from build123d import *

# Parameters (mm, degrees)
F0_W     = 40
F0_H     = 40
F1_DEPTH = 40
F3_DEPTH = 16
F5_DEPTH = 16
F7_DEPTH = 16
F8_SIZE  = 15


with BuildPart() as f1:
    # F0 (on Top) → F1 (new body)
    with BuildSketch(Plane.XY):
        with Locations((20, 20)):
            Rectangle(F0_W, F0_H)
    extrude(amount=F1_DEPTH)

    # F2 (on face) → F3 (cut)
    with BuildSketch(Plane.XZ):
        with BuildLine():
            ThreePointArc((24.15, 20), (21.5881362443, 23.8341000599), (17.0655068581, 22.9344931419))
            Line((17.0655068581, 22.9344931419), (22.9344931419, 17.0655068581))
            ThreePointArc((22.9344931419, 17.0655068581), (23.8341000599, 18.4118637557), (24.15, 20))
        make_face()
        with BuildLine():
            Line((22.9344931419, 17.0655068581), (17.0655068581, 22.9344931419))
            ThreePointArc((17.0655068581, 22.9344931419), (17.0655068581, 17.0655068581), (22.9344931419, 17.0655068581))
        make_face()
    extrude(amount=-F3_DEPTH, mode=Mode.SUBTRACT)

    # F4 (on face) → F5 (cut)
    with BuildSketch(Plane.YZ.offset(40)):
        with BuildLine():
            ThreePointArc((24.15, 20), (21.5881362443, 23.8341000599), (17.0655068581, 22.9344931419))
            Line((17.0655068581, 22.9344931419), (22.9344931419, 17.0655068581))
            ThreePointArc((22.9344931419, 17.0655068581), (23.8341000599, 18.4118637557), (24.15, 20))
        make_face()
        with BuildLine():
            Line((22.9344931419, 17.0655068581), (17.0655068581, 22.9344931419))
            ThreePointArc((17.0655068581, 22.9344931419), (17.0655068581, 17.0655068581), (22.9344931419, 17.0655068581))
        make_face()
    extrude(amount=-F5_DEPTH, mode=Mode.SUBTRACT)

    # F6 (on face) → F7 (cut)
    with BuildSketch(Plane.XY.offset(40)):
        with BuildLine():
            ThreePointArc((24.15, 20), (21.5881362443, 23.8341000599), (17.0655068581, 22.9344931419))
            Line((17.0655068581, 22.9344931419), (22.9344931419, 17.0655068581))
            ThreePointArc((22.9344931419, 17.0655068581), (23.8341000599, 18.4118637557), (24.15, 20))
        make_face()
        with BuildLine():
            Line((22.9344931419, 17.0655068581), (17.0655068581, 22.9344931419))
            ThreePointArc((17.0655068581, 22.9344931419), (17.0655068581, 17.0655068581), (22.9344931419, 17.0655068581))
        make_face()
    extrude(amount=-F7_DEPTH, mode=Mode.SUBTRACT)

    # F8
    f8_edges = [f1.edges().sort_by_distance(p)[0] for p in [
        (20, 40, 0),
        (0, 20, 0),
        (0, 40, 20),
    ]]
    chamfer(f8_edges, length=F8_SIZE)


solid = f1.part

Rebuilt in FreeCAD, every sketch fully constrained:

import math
import FreeCAD as App
import Part
import Sketcher
Q = App.Units.Quantity


def edges_at(feature, points):
    """Names of the edges that pass closest to the given points."""
    edges = feature.Shape.Edges
    near = lambda p: min(range(len(edges)), key=lambda i: edges[i].distToShape(Part.Vertex(*p))[0])
    return sorted({f"Edge{near(p) + 1}" for p in points})


def add_polygon(sketch, points):
    """Adds a closed chain of lines whose ends are joined by coincident constraints."""
    first, n = sketch.GeometryCount, len(points)
    for a, b in zip(points, points[1:] + points[:1]):
        sketch.addGeometry(Part.LineSegment(App.Vector(*a, 0), App.Vector(*b, 0)), False)
    for i in range(n):
        sketch.addConstraint(Sketcher.Constraint("Coincident", first + i, 2, first + (i + 1) % n, 1))

doc = App.newDocument("Part")
params = doc.addObject("Spreadsheet::Sheet", "Params")
for row, (alias, value) in enumerate([
    ("sketch1_width", "40 mm"),
    ("pad1_length", "40 mm"),
    ("sketch2_radius", "4.15 mm"),
    ("pocket1_length", "16 mm"),
    ("sketch3_radius", "4.15 mm"),
    ("pocket2_length", "16 mm"),
    ("sketch4_radius", "4.15 mm"),
    ("pocket3_length", "16 mm"),
    ("chamfer_size", "15 mm"),
], start=1):
    params.set(f"A{row}", alias)
    params.set(f"B{row}", "=" + value)
    params.setAlias(f"B{row}", alias)

body = doc.addObject("PartDesign::Body", "Body")

sketch1 = body.newObject("Sketcher::SketchObject", "Sketch")
sketch1.AttachmentSupport = (doc.getObject("XY_Plane"), [""])
sketch1.MapMode = "FlatFace"
add_polygon(sketch1, [(0, 40), (0, 0), (40, 0), (40, 40)])
sketch1.addConstraint([
    Sketcher.Constraint("Vertical", 0),
    Sketcher.Constraint("Horizontal", 1),
    Sketcher.Constraint("Vertical", 2),
    Sketcher.Constraint("Horizontal", 3),
    Sketcher.Constraint("Coincident", 0, 2, -1, 1),
    Sketcher.Constraint("Equal", 3, 0),
    Sketcher.Constraint("DistanceX", 1, 1, 1, 2, Q("40 mm")),
])
sketch1.setExpression("Constraints[10]", "Params.sketch1_width")
pad1 = body.newObject("PartDesign::Pad", "Pad")
pad1.Profile = sketch1
pad1.setExpression("Length", "Params.pad1_length")

sketch2 = body.newObject("Sketcher::SketchObject", "Sketch001")
sketch2.AttachmentSupport = (doc.getObject("XZ_Plane"), [""])
sketch2.MapMode = "FlatFace"
sketch2.addGeometry([
    Part.ArcOfCircle(Part.Circle(App.Vector(20, 20, 0), App.Vector(0, 0, 1), 4.2), math.radians(0), math.radians(135)),
    Part.ArcOfCircle(Part.Circle(App.Vector(20, 20, 0), App.Vector(0, 0, 1), 4.2), math.radians(135), math.radians(360)),
], False)
sketch2.addConstraint([
    Sketcher.Constraint("Tangent", 0, 1, 1, 2),
    Sketcher.Constraint("Coincident", 1, 1, 0, 2),
    Sketcher.Constraint("Horizontal", 1, 3, 0, 1),
    Sketcher.Constraint("Radius", 0, Q("4.15 mm")),
    Sketcher.Constraint("DistanceX", -1, 1, 0, 3, Q("20 mm")),
    Sketcher.Constraint("DistanceY", -1, 1, 0, 3, Q("20 mm")),
    Sketcher.Constraint("DistanceX", -1, 1, 1, 1, Q("17.065507 mm")),
])
sketch2.setExpression("Constraints[3]", "Params.sketch2_radius")
pocket1 = body.newObject("PartDesign::Pocket", "Pocket")
pocket1.Profile = sketch2
pocket1.setExpression("Length", "Params.pocket1_length")

sketch3 = body.newObject("Sketcher::SketchObject", "Sketch002")
sketch3.AttachmentSupport = (doc.getObject("YZ_Plane"), [""])
sketch3.MapMode = "FlatFace"
sketch3.AttachmentOffset = App.Placement(App.Vector(0, 0, 40), App.Rotation())
sketch3.addGeometry([
    Part.ArcOfCircle(Part.Circle(App.Vector(20, 20, 0), App.Vector(0, 0, 1), 4.2), math.radians(0), math.radians(135)),
    Part.ArcOfCircle(Part.Circle(App.Vector(20, 20, 0), App.Vector(0, 0, 1), 4.2), math.radians(135), math.radians(360)),
], False)
sketch3.addConstraint([
    Sketcher.Constraint("Tangent", 0, 1, 1, 2),
    Sketcher.Constraint("Coincident", 1, 1, 0, 2),
    Sketcher.Constraint("Horizontal", 1, 3, 0, 1),
    Sketcher.Constraint("Radius", 0, Q("4.15 mm")),
    Sketcher.Constraint("DistanceX", -1, 1, 0, 3, Q("20 mm")),
    Sketcher.Constraint("DistanceY", -1, 1, 0, 3, Q("20 mm")),
    Sketcher.Constraint("DistanceX", -1, 1, 1, 1, Q("17.065507 mm")),
])
sketch3.setExpression("Constraints[3]", "Params.sketch3_radius")
pocket2 = body.newObject("PartDesign::Pocket", "Pocket001")
pocket2.Profile = sketch3
pocket2.setExpression("Length", "Params.pocket2_length")

sketch4 = body.newObject("Sketcher::SketchObject", "Sketch003")
sketch4.AttachmentSupport = (doc.getObject("XY_Plane"), [""])
sketch4.MapMode = "FlatFace"
sketch4.AttachmentOffset = App.Placement(App.Vector(0, 0, 40), App.Rotation())
sketch4.addGeometry([
    Part.ArcOfCircle(Part.Circle(App.Vector(20, 20, 0), App.Vector(0, 0, 1), 4.2), math.radians(0), math.radians(135)),
    Part.ArcOfCircle(Part.Circle(App.Vector(20, 20, 0), App.Vector(0, 0, 1), 4.2), math.radians(135), math.radians(360)),
], False)
sketch4.addConstraint([
    Sketcher.Constraint("Tangent", 0, 1, 1, 2),
    Sketcher.Constraint("Coincident", 1, 1, 0, 2),
    Sketcher.Constraint("Horizontal", 1, 3, 0, 1),
    Sketcher.Constraint("Radius", 0, Q("4.15 mm")),
    Sketcher.Constraint("DistanceX", -1, 1, 0, 3, Q("20 mm")),
    Sketcher.Constraint("DistanceY", -1, 1, 0, 3, Q("20 mm")),
    Sketcher.Constraint("DistanceX", -1, 1, 1, 1, Q("17.065507 mm")),
])
sketch4.setExpression("Constraints[3]", "Params.sketch4_radius")
pocket3 = body.newObject("PartDesign::Pocket", "Pocket002")
pocket3.Profile = sketch4
pocket3.setExpression("Length", "Params.pocket3_length")
doc.recompute()

chamfer = body.newObject("PartDesign::Chamfer", "Chamfer")
chamfer.Base = (pocket3, edges_at(pocket3, [(20, 40, 0), (0, 20, 0), (0, 40, 20)]))
chamfer.setExpression("Size", "Params.chamfer_size")

doc.recompute()
